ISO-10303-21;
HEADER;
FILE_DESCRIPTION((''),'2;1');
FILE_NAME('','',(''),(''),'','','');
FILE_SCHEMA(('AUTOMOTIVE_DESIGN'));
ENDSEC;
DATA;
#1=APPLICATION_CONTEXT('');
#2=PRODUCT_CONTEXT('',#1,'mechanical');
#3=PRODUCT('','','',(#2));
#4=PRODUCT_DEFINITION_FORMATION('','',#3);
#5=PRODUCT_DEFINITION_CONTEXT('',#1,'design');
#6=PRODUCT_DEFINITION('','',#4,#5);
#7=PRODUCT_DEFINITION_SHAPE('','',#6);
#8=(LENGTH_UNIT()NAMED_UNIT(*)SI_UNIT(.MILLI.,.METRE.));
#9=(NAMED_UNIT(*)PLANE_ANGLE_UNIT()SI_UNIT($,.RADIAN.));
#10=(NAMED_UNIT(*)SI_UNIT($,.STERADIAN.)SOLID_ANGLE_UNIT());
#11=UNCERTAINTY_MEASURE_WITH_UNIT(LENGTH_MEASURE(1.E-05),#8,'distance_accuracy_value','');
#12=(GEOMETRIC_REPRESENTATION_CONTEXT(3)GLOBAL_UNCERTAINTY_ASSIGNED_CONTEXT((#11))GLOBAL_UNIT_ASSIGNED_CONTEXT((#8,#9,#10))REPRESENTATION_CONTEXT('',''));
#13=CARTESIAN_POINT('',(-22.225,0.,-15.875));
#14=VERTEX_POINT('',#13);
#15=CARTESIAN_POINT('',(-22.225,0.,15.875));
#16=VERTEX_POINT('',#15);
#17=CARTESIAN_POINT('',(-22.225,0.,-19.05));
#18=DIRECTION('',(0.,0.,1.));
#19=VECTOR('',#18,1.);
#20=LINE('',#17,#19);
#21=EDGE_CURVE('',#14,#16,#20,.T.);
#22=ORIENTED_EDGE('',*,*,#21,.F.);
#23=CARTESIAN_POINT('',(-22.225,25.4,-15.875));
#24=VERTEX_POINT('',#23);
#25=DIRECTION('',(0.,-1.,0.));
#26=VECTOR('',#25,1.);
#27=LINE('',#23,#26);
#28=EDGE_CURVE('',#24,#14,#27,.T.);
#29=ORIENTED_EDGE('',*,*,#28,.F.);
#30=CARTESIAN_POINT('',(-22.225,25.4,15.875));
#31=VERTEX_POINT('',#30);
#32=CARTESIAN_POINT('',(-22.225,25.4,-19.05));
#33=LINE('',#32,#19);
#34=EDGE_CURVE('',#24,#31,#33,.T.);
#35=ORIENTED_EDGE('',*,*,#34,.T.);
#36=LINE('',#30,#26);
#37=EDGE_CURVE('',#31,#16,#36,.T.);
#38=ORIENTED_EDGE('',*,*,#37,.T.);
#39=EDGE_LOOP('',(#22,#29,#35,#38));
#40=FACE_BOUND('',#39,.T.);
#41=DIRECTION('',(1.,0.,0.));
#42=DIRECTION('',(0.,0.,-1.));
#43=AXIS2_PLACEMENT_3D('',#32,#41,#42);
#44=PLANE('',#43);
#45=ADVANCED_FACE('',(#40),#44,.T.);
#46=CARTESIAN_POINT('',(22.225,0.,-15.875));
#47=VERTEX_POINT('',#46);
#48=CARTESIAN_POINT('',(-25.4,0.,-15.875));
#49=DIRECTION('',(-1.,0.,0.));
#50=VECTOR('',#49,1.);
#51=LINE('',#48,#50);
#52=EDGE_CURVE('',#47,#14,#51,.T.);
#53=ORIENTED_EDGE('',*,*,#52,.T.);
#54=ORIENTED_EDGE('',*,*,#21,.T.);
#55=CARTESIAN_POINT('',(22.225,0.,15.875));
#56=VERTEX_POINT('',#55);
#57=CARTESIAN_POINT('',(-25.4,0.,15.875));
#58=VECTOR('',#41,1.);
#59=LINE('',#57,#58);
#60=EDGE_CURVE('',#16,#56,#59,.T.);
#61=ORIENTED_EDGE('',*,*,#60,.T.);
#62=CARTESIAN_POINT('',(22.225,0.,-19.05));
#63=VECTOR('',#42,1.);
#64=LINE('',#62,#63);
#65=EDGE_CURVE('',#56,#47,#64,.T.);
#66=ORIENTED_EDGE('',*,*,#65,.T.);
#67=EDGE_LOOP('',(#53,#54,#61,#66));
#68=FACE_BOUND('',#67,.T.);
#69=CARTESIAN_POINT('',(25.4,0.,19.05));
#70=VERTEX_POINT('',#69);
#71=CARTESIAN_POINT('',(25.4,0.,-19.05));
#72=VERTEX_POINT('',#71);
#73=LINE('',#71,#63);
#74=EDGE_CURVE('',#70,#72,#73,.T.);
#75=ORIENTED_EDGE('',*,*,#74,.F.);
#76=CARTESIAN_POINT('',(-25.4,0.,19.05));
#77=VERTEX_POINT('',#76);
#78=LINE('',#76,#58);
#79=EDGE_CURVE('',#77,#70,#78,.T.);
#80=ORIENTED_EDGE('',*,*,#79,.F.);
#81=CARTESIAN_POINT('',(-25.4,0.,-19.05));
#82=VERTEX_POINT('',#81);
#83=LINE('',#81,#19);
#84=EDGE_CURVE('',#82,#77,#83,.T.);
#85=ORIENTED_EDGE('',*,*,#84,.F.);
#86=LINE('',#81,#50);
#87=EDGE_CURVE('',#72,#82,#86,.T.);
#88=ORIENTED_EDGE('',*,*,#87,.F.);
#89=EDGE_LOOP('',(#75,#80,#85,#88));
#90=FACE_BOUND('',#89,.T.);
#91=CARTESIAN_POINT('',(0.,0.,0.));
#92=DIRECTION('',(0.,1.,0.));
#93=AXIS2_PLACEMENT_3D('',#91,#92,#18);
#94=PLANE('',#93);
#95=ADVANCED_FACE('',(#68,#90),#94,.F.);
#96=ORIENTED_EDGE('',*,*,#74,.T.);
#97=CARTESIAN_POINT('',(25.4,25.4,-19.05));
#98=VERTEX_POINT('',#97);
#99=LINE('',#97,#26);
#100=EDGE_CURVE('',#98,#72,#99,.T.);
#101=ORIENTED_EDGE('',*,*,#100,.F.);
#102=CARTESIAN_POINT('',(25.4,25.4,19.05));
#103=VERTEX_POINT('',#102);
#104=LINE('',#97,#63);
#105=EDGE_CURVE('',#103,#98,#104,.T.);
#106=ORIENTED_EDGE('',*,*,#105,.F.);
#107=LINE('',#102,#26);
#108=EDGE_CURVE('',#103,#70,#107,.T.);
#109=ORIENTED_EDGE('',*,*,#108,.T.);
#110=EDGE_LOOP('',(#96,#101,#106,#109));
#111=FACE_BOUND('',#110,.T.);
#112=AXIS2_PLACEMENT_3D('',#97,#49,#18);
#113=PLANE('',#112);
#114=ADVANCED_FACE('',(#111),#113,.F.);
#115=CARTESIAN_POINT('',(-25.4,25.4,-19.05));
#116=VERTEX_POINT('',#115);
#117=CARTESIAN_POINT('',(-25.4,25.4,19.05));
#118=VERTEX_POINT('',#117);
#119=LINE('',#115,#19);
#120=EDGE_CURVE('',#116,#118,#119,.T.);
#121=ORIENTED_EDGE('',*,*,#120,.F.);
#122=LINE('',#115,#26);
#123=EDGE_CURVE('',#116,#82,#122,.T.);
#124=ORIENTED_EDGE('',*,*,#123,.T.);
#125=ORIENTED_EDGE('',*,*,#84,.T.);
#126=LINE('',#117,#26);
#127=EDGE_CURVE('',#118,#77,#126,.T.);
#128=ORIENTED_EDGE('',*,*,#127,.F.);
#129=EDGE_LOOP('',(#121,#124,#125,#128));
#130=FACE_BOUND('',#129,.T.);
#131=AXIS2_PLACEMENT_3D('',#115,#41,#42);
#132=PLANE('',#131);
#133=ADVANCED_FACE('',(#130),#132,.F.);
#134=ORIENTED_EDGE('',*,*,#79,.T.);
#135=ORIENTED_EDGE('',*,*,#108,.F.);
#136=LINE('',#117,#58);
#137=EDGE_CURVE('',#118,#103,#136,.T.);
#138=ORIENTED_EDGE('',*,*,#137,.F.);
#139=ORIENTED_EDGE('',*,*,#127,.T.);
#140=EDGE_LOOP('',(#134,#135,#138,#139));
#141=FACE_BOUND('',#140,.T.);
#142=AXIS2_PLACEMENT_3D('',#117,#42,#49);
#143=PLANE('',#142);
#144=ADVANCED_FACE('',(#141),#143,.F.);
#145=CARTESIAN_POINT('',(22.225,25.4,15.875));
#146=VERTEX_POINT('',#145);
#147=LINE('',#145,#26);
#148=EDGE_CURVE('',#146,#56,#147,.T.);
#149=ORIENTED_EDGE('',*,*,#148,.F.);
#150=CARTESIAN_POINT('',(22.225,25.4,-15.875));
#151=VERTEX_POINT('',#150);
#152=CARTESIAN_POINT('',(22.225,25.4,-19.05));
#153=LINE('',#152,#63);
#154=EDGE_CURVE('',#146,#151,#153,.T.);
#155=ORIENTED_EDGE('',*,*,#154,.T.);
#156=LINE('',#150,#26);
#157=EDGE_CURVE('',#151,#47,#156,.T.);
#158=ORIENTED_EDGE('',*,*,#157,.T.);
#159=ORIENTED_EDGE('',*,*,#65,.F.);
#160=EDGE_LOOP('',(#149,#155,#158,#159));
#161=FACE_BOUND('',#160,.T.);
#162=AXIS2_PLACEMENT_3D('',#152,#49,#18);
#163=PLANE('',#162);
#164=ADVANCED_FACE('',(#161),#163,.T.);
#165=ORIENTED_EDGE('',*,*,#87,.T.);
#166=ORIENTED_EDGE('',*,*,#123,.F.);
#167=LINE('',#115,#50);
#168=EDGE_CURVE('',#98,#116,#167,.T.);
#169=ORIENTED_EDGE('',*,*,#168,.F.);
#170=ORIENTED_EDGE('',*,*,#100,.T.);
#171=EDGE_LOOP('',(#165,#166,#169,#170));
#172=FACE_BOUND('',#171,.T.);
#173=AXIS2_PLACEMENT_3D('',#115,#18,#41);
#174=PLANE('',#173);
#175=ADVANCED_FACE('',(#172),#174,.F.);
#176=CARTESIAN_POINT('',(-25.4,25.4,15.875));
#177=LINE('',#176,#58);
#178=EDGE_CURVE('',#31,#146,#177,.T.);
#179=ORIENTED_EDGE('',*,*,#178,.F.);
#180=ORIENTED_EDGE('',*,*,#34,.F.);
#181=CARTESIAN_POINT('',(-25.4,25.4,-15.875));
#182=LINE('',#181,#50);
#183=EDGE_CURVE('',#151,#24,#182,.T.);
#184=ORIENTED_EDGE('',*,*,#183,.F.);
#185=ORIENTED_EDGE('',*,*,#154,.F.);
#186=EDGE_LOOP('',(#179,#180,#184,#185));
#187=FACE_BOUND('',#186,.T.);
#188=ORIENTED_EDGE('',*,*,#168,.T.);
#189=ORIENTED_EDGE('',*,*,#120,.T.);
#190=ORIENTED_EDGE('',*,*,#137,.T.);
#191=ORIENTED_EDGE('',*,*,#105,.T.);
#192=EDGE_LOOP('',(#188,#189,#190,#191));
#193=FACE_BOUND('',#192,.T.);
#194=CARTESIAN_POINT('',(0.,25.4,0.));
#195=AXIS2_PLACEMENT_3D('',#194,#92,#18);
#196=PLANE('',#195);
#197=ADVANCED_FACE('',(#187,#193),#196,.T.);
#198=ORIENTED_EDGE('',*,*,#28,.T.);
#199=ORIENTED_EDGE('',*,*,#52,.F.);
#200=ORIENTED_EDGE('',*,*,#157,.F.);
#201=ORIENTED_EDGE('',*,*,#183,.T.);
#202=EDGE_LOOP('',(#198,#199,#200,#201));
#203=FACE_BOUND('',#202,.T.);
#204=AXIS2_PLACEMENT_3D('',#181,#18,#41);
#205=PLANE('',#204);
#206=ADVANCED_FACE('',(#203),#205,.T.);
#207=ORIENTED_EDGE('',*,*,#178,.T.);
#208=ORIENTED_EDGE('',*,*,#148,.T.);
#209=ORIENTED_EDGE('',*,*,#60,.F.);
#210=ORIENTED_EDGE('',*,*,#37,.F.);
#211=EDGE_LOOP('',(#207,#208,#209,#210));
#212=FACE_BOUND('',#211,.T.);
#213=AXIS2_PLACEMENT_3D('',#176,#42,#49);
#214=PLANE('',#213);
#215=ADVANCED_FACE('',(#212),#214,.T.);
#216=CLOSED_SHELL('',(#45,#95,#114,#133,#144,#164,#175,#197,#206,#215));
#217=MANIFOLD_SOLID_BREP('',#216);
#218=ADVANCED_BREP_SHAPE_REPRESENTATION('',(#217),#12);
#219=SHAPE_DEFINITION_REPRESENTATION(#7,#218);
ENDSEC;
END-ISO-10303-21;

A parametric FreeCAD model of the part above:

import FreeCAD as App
import Part
import Sketcher
Q = App.Units.Quantity


def faces_at(feature, points):
    """Names of the faces that lie closest to the given points."""
    faces = feature.Shape.Faces
    near = lambda p: min(range(len(faces)), key=lambda i: faces[i].distToShape(Part.Vertex(*p))[0])
    return sorted({f"Face{near(p) + 1}" for p in points})

doc = App.newDocument("Part")
params = doc.addObject("Spreadsheet::Sheet", "Params")
for row, (alias, value) in enumerate([
    ("sketch1_width", "2 in"),
    ("sketch1_height", "1.5 in"),
    ("pad1_length", "1 in"),
    ("thickness_wall", "0.125 in"),
], start=1):
    params.set(f"A{row}", alias)
    params.set(f"B{row}", "=" + value)
    params.setAlias(f"B{row}", alias)

body = doc.addObject("PartDesign::Body", "Body")

sketch1 = body.newObject("Sketcher::SketchObject", "Sketch")
sketch1.AttachmentSupport = (doc.getObject("XZ_Plane"), [""])
sketch1.MapMode = "FlatFace"
sketch1.addGeometry([
    Part.LineSegment(App.Vector(-25.4, -19.05, 0), App.Vector(-25.4, 19.05, 0)),
    Part.LineSegment(App.Vector(-25.4, 19.05, 0), App.Vector(25.4, 19.05, 0)),
    Part.LineSegment(App.Vector(25.4, 19.05, 0), App.Vector(25.4, -19.05, 0)),
    Part.LineSegment(App.Vector(25.4, -19.05, 0), App.Vector(-25.4, -19.05, 0)),
], False)
sketch1.addConstraint([
    Sketcher.Constraint("Coincident", 0, 2, 1, 1),
    Sketcher.Constraint("Coincident", 1, 2, 2, 1),
    Sketcher.Constraint("Coincident", 2, 2, 3, 1),
    Sketcher.Constraint("Coincident", 3, 2, 0, 1),
    Sketcher.Constraint("Vertical", 0),
    Sketcher.Constraint("Horizontal", 1),
    Sketcher.Constraint("Vertical", 2),
    Sketcher.Constraint("Horizontal", 3),
    Sketcher.Constraint("Symmetric", 0, 2, 2, 2, -1, 1),
    Sketcher.Constraint("DistanceX", 1, 1, 1, 2, Q("2 in")),
    Sketcher.Constraint("DistanceY", 0, 1, 0, 2, Q("1.5 in")),
])
sketch1.setExpression("Constraints[9]", "Params.sketch1_width")
sketch1.setExpression("Constraints[10]", "Params.sketch1_height")
pad1 = body.newObject("PartDesign::Pad", "Pad")
pad1.Profile = sketch1
pad1.setExpression("Length", "Params.pad1_length")
pad1.Reversed = True
doc.recompute()

thickness = body.newObject("PartDesign::Thickness", "Thickness")
thickness.Base = (pad1, faces_at(pad1, [(0, 25.4, 0), (0, 0, 0)]))
thickness.setExpression("Value", "Params.thickness_wall")
thickness.Reversed = True
thickness.Join = "Intersection"

doc.recompute()
